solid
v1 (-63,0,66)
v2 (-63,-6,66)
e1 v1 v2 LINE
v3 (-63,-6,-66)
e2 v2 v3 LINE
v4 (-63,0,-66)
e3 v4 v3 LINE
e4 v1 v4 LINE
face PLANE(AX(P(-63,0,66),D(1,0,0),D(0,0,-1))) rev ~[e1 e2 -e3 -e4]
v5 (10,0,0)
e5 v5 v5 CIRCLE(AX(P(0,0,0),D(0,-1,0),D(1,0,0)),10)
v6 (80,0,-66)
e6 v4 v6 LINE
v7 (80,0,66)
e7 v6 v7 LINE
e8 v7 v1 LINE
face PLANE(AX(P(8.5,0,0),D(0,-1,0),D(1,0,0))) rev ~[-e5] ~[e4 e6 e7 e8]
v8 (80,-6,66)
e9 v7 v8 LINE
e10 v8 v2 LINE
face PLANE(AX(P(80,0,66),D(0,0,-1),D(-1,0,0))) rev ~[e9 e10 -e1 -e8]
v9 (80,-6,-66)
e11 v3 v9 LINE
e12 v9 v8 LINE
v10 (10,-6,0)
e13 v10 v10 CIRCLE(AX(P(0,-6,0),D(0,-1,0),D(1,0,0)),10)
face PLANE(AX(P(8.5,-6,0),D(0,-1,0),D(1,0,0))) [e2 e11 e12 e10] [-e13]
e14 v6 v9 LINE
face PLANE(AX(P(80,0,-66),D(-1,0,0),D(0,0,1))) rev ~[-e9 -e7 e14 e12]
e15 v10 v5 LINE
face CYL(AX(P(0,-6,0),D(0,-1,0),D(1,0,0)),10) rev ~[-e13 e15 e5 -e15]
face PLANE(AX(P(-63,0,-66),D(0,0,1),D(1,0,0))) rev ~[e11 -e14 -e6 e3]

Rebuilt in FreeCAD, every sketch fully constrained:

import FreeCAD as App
import Part
import Sketcher
from FreeCAD import Vector

doc = App.newDocument("Part")
params = doc.addObject("Spreadsheet::Sheet", "Params")
for row, (alias, value) in enumerate([
    ("sketch1_width", "143 mm"),
    ("sketch1_height", "132 mm"),
    ("pad1_length", "6 mm"),
    ("sketch2_diameter", "20 mm"),
], start=1):
    params.set(f"A{row}", alias)
    params.set(f"B{row}", "=" + value)
    params.setAlias(f"B{row}", alias)

body = doc.addObject("PartDesign::Body", "Body")

# Sketch on XZ plane
sketch1 = body.newObject("Sketcher::SketchObject", "Sketch")
sketch1.AttachmentSupport = (doc.getObject("XZ_Plane"), [""])
sketch1.MapMode = "FlatFace"
sketch1.addGeometry([
    Part.LineSegment(Vector(80, 66, 0), Vector(-63, 66, 0)),
    Part.LineSegment(Vector(-63, 66, 0), Vector(-63, -66, 0)),
    Part.LineSegment(Vector(-63, -66, 0), Vector(80, -66, 0)),
    Part.LineSegment(Vector(80, -66, 0), Vector(80, 66, 0)),
], False)
sketch1.addConstraint([
    Sketcher.Constraint("Coincident", 0, 2, 1, 1),
    Sketcher.Constraint("Coincident", 1, 2, 2, 1),
    Sketcher.Constraint("Coincident", 2, 2, 3, 1),
    Sketcher.Constraint("Coincident", 3, 2, 0, 1),
    Sketcher.Constraint("Horizontal", 0),
    Sketcher.Constraint("Vertical", 1),
    Sketcher.Constraint("Horizontal", 2),
    Sketcher.Constraint("Vertical", 3),
    Sketcher.Constraint("DistanceX", 0, 2, 0, 1, 143.0),
    Sketcher.Constraint("DistanceY", 1, 2, 1, 1, 132.0),
    Sketcher.Constraint("DistanceX", 0, 2, -1, 1, 63.0),
    Sketcher.Constraint("DistanceY", -1, 1, 0, 2, 66.0),
])
sketch1.setExpression("Constraints[8]", "Params.sketch1_width")
sketch1.setExpression("Constraints[9]", "Params.sketch1_height")
pad1 = body.newObject("PartDesign::Pad", "Pad")
pad1.Profile = sketch1
pad1.setExpression("Length", "Params.pad1_length")

# Sketch on XZ plane
sketch2 = body.newObject("Sketcher::SketchObject", "Sketch001")
sketch2.AttachmentSupport = (doc.getObject("XZ_Plane"), [""])
sketch2.MapMode = "FlatFace"
sketch2.AttachmentOffset = App.Placement(Vector(0, 0, 6), App.Rotation())
sketch2.addGeometry(Part.Circle(Vector(0, 0, 0), Vector(0, 0, 1), 10), False)
sketch2.addConstraint([
    Sketcher.Constraint("Coincident", 0, 3, -1, 1),
    Sketcher.Constraint("Diameter", 0, 20.0),
])
sketch2.setExpression("Constraints[1]", "Params.sketch2_diameter")
pocket1 = body.newObject("PartDesign::Pocket", "Pocket")
pocket1.Profile = sketch2
pocket1.Type = "ThroughAll"

doc.recompute()
